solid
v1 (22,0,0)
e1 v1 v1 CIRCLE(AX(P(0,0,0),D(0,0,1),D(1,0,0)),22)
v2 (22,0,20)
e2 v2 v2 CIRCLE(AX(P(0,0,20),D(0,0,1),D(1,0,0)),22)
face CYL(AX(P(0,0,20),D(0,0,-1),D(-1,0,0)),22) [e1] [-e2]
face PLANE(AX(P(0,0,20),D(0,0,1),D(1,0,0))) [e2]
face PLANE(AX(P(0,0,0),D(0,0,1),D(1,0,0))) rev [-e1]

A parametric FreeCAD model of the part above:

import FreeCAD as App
import Part
import Sketcher

doc = App.newDocument("Part")
body = doc.addObject("PartDesign::Body", "Body")

sketch1 = doc.addObject("Sketcher::SketchObject", "Sketch")
body.addObject(sketch1)
sketch1.AttachmentSupport = (doc.XY_Plane, [""])
sketch1.MapMode = "FlatFace"
sketch1.addGeometry(Part.Circle(App.Vector(0, 0, 0), App.Vector(0, 0, 1), 22), False)
sketch1.addConstraint([
    Sketcher.Constraint("Coincident", 0, 3, -1, 1),
    Sketcher.Constraint("Diameter", 0, 44.0),
])
pad1 = doc.addObject("PartDesign::Pad", "Pad")
body.addObject(pad1)
pad1.Profile = sketch1
pad1.Length = 20

doc.recompute()
